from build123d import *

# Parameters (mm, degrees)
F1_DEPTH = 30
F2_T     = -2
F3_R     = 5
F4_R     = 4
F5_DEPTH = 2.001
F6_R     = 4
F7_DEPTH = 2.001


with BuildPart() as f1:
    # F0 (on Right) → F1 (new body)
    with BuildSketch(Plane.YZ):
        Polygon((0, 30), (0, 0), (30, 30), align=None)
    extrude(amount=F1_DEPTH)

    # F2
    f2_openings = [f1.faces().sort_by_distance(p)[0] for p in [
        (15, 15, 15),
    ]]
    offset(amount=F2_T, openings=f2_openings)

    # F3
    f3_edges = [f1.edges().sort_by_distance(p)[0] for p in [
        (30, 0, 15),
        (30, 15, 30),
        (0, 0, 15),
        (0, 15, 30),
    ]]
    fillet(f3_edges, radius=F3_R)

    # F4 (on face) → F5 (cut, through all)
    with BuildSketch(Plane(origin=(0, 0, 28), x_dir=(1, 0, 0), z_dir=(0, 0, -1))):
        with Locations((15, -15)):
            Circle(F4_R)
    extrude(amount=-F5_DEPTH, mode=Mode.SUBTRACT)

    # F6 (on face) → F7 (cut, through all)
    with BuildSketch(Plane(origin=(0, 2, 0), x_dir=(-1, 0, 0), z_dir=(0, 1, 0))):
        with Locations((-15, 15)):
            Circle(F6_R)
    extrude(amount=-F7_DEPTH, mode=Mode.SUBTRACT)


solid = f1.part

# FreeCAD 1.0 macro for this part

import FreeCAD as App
import Part
import Sketcher


def edges_at(feature, points):
    """Names of the edges that pass closest to the given points."""
    edges = feature.Shape.Edges
    near = lambda p: min(range(len(edges)), key=lambda i: edges[i].distToShape(Part.Vertex(*p))[0])
    return sorted({f"Edge{near(p) + 1}" for p in points})


def faces_at(feature, points):
    """Names of the faces that lie closest to the given points."""
    faces = feature.Shape.Faces
    near = lambda p: min(range(len(faces)), key=lambda i: faces[i].distToShape(Part.Vertex(*p))[0])
    return sorted({f"Face{near(p) + 1}" for p in points})

doc = App.newDocument("Part")
body = doc.addObject("PartDesign::Body", "Body")

sketch1 = body.newObject("Sketcher::SketchObject", "Sketch")
sketch1.AttachmentSupport = (doc.getObject("YZ_Plane"), [""])
sketch1.MapMode = "FlatFace"
sketch1.addGeometry(Part.LineSegment(App.Vector(0, 30, 0), App.Vector(0, 0, 0)), False)
sketch1.addGeometry(Part.LineSegment(App.Vector(0, 0, 0), App.Vector(30, 30, 0)), False)
sketch1.addGeometry(Part.LineSegment(App.Vector(30, 30, 0), App.Vector(0, 30, 0)), False)
sketch1.addConstraint(Sketcher.Constraint("Coincident", 0, 2, 1, 1))
sketch1.addConstraint(Sketcher.Constraint("Coincident", 1, 2, 2, 1))
sketch1.addConstraint(Sketcher.Constraint("Coincident", 2, 2, 0, 1))
sketch1.addConstraint(Sketcher.Constraint("Vertical", 0))
sketch1.addConstraint(Sketcher.Constraint("Horizontal", 2))
sketch1.addConstraint(Sketcher.Constraint("Coincident", 0, 2, -1, 1))
sketch1.addConstraint(Sketcher.Constraint("Equal", 2, 0))
sketch1.addConstraint(Sketcher.Constraint("DistanceX", 2, 2, 2, 1, 30.0))
pad1 = body.newObject("PartDesign::Pad", "Pad")
pad1.Profile = sketch1
pad1.Length = 30
doc.recompute()

thickness = body.newObject("PartDesign::Thickness", "Thickness")
thickness.Base = (pad1, faces_at(pad1, [(15, 15, 15)]))
thickness.Value = 2
thickness.Reversed = True
thickness.Join = "Arc"
doc.recompute()

fillet = body.newObject("PartDesign::Fillet", "Fillet")
fillet.Base = (thickness, edges_at(thickness, [
    (30, 0, 15),
    (30, 15, 30),
    (0, 0, 15),
    (0, 15, 30),
]))
fillet.Radius = 5

sketch2 = body.newObject("Sketcher::SketchObject", "Sketch001")
sketch2.AttachmentSupport = (doc.getObject("XY_Plane"), [""])
sketch2.MapMode = "FlatFace"
sketch2.AttachmentOffset = App.Placement(App.Vector(0, 0, 28), App.Rotation())
sketch2.addGeometry(Part.Circle(App.Vector(15, 15, 0), App.Vector(0, 0, 1), 4), False)
sketch2.addConstraint(Sketcher.Constraint("Diameter", 0, 8.0))
sketch2.addConstraint(Sketcher.Constraint("DistanceX", -1, 1, 0, 3, 15.0))
sketch2.addConstraint(Sketcher.Constraint("DistanceY", -1, 1, 0, 3, 15.0))
pocket1 = body.newObject("PartDesign::Pocket", "Pocket")
pocket1.Profile = sketch2
pocket1.Type = "ThroughAll"
pocket1.Reversed = True

sketch3 = body.newObject("Sketcher::SketchObject", "Sketch002")
sketch3.AttachmentSupport = (doc.getObject("XZ_Plane"), [""])
sketch3.MapMode = "FlatFace"
sketch3.AttachmentOffset = App.Placement(App.Vector(0, 0, -2), App.Rotation())
sketch3.addGeometry(Part.Circle(App.Vector(15, 15, 0), App.Vector(0, 0, 1), 4), False)
sketch3.addConstraint(Sketcher.Constraint("Diameter", 0, 8.0))
sketch3.addConstraint(Sketcher.Constraint("DistanceX", -1, 1, 0, 3, 15.0))
sketch3.addConstraint(Sketcher.Constraint("DistanceY", -1, 1, 0, 3, 15.0))
pocket2 = body.newObject("PartDesign::Pocket", "Pocket001")
pocket2.Profile = sketch3
pocket2.Type = "ThroughAll"
pocket2.Reversed = True

doc.recompute()
